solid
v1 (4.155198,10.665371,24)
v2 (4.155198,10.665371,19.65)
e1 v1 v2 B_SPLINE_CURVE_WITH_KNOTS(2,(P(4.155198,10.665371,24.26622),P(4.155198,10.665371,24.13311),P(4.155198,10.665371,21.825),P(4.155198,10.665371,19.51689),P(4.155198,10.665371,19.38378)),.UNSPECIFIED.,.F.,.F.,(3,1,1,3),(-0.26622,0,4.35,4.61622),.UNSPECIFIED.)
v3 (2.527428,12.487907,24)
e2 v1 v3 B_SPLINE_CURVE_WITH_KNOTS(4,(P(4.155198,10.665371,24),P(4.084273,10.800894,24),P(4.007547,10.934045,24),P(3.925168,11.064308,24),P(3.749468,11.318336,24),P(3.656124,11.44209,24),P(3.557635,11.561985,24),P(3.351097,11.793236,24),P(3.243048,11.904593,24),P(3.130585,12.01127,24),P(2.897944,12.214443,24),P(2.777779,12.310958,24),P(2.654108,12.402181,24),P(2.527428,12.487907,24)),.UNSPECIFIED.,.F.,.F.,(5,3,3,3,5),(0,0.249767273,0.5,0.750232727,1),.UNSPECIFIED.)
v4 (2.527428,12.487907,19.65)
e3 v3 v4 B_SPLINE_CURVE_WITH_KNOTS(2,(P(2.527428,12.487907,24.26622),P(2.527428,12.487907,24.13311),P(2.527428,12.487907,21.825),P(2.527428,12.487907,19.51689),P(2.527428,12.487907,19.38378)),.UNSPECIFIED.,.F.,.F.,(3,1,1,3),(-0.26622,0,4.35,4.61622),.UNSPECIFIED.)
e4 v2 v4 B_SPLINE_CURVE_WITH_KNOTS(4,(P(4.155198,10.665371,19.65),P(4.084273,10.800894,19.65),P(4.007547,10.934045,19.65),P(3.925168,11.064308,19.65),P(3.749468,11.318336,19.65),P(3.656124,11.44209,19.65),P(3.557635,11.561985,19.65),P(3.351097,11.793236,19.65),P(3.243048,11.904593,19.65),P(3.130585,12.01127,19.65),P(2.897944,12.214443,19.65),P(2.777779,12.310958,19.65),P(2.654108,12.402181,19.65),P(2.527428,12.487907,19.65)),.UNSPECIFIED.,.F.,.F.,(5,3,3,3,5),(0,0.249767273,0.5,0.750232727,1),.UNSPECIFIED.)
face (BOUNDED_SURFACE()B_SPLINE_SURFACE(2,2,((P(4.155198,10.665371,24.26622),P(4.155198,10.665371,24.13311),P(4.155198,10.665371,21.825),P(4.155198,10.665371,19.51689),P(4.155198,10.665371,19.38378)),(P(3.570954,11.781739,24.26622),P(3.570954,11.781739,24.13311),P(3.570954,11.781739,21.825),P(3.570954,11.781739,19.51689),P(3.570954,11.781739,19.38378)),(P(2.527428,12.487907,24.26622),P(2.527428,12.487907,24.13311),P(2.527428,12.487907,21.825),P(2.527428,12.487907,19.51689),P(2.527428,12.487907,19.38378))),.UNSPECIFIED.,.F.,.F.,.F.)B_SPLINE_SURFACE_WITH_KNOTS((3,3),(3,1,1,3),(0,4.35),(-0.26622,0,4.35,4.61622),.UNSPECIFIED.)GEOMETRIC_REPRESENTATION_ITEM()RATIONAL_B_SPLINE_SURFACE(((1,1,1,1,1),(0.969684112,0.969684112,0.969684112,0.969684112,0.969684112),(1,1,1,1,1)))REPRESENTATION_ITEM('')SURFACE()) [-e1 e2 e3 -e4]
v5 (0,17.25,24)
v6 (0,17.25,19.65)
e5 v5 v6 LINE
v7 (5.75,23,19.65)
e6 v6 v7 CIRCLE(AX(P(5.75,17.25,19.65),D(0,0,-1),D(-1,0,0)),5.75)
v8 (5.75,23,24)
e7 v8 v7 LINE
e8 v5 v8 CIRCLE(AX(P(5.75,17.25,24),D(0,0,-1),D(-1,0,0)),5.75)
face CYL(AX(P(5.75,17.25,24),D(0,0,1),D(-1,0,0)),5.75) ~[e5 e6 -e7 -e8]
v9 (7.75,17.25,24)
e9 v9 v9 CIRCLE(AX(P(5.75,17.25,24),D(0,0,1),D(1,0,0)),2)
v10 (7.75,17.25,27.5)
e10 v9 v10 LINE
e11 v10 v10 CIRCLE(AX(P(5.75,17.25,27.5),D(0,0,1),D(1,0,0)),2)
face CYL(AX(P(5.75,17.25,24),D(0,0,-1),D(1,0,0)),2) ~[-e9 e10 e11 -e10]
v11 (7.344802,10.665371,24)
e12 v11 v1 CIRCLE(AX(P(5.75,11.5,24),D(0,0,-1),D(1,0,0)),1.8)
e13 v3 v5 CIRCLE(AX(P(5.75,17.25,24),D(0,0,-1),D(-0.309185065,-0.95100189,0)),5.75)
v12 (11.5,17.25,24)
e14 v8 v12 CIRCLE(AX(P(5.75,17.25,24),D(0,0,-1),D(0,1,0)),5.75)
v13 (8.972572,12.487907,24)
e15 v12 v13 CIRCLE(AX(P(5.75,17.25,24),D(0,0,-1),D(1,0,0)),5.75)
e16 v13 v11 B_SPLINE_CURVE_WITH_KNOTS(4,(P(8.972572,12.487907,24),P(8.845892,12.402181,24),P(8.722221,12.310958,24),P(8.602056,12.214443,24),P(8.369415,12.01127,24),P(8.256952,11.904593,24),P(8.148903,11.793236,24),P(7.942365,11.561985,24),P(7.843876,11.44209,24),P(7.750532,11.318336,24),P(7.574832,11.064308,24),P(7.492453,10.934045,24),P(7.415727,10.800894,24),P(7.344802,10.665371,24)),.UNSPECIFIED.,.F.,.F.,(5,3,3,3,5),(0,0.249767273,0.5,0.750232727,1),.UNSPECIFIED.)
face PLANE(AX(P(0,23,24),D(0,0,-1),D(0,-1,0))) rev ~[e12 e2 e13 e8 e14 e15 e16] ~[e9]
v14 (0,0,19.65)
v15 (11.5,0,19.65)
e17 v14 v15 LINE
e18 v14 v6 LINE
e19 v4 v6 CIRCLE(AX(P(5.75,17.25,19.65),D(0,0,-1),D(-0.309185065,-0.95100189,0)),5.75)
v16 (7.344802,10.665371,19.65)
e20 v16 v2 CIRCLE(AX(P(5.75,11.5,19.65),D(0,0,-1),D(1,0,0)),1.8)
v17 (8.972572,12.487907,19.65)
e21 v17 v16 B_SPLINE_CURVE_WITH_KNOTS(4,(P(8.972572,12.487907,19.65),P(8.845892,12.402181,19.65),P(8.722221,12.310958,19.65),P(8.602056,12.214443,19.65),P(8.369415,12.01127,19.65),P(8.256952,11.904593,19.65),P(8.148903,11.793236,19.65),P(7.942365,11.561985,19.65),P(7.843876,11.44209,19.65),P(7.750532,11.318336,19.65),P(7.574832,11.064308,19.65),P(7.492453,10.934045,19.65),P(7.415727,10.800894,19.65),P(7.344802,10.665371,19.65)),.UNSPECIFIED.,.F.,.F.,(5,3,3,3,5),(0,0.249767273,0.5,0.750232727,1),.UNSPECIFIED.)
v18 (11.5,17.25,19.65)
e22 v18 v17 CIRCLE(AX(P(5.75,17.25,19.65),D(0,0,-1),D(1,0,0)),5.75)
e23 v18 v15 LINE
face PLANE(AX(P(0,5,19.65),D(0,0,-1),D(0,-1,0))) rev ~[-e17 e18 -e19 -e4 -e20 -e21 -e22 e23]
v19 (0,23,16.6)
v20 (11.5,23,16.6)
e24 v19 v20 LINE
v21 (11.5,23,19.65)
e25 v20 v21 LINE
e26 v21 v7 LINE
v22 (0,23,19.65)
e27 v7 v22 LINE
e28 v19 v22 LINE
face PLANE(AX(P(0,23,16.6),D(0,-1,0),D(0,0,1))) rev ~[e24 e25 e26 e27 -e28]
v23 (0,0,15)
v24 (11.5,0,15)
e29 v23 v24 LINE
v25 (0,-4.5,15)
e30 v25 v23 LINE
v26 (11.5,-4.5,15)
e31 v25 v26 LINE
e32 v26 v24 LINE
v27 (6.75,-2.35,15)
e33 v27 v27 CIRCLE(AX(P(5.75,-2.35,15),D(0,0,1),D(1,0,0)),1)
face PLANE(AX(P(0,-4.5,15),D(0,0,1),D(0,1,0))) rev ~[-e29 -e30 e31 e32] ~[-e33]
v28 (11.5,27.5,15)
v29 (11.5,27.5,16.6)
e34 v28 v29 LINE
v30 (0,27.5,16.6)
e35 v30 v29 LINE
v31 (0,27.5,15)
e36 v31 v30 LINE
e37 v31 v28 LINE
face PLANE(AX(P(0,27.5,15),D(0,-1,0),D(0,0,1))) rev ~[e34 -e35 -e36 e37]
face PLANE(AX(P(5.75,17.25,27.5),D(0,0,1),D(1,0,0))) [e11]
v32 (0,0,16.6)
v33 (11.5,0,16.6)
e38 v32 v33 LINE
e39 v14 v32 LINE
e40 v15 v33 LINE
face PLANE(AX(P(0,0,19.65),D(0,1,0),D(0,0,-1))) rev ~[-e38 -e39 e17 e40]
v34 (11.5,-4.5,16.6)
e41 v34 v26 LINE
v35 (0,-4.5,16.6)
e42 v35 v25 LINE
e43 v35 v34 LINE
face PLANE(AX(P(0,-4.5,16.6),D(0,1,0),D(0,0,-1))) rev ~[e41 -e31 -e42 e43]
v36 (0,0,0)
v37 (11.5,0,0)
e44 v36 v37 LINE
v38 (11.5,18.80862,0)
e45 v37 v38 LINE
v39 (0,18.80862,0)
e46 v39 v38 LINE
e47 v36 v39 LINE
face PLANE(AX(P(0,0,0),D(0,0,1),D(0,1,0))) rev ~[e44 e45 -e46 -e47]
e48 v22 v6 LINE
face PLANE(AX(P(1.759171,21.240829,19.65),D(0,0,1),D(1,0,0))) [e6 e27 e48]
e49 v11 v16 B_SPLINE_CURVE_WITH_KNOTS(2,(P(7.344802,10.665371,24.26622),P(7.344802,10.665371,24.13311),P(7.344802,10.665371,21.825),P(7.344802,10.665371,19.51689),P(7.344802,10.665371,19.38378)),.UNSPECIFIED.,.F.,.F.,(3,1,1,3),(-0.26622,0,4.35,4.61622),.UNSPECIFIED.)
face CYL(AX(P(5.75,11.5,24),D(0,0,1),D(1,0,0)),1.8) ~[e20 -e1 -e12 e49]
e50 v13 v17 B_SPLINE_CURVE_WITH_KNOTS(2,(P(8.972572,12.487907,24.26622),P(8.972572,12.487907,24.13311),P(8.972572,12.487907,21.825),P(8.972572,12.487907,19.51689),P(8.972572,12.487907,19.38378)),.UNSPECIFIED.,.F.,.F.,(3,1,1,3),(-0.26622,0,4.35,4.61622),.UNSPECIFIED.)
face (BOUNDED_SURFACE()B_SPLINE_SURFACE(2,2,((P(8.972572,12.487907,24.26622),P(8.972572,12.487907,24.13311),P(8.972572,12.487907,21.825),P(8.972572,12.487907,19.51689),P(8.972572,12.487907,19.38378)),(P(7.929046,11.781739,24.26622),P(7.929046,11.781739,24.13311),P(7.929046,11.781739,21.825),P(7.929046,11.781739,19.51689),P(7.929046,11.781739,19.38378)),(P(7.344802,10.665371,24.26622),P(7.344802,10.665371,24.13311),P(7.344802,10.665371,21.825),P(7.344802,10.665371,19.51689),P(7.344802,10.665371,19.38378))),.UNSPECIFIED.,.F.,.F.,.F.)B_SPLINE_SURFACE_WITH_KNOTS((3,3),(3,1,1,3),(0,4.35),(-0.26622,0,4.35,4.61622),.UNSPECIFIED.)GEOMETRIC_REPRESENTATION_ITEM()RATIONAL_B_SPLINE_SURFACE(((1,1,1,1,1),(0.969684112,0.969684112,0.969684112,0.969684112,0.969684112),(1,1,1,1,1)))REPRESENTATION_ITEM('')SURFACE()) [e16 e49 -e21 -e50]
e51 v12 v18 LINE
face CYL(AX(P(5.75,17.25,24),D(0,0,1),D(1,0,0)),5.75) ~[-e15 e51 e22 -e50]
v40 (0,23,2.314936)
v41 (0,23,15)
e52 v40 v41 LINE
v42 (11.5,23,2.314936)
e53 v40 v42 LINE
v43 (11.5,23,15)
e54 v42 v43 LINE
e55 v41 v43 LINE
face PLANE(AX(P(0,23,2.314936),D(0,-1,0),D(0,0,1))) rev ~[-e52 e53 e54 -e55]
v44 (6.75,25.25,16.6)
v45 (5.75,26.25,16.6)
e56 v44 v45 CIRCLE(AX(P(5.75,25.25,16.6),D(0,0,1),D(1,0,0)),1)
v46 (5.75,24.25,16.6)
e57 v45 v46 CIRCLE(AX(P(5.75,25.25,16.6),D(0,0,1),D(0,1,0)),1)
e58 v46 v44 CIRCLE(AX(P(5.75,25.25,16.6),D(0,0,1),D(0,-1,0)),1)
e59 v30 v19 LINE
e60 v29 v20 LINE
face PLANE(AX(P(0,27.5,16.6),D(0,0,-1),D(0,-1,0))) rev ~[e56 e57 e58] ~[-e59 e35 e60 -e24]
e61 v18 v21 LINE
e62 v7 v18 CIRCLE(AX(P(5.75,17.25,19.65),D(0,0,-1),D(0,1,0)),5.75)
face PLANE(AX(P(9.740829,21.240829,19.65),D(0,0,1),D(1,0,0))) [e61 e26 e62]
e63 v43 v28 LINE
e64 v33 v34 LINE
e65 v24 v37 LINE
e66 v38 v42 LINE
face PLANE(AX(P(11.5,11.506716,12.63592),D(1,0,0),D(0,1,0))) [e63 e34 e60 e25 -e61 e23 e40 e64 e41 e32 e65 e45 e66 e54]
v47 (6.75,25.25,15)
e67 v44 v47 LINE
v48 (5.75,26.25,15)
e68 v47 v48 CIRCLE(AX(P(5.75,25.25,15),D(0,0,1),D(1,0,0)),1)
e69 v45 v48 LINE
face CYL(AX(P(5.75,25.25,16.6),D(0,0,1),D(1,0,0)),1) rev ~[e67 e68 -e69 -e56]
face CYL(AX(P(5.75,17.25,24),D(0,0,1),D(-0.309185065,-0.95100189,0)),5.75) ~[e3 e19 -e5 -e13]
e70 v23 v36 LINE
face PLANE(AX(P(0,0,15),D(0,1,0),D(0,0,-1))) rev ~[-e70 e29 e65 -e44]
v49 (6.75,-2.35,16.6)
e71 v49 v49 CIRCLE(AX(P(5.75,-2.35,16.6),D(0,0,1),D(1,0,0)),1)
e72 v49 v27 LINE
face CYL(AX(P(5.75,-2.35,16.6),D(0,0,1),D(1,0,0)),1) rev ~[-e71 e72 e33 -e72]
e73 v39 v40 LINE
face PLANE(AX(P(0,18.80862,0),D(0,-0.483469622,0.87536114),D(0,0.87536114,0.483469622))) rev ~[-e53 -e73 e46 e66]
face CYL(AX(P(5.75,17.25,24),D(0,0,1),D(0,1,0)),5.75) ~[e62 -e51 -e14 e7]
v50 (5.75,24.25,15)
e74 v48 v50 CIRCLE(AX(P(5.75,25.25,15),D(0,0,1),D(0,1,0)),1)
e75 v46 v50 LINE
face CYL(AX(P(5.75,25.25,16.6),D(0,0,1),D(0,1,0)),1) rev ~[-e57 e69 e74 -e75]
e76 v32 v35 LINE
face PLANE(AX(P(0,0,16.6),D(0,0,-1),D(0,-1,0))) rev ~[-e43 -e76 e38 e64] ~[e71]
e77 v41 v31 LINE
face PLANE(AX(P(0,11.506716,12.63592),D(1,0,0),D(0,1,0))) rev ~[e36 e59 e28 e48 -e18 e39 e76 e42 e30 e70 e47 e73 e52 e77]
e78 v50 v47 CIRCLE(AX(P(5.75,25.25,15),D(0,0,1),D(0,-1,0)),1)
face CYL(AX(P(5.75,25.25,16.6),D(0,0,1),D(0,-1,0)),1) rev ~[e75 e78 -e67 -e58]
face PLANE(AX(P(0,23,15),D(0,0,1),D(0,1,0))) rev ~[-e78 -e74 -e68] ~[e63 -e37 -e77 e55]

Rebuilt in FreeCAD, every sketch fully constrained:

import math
import FreeCAD as App
import Part
import Sketcher

V = App.Vector
Q = App.Units.Quantity


def edges_at(feature, points):
    """Names of the edges that pass closest to the given points."""
    edges = feature.Shape.Edges
    near = lambda p: min(range(len(edges)), key=lambda i: edges[i].distToShape(Part.Vertex(*p))[0])
    return sorted({f"Edge{near(p) + 1}" for p in points})


def add_polygon(sketch, points):
    """Adds a closed chain of lines whose ends are joined by coincident constraints."""
    first, n = sketch.GeometryCount, len(points)
    for a, b in zip(points, points[1:] + points[:1]):
        sketch.addGeometry(Part.LineSegment(App.Vector(*a, 0), App.Vector(*b, 0)), False)
    for i in range(n):
        sketch.addConstraint(Sketcher.Constraint("Coincident", first + i, 2, first + (i + 1) % n, 1))

doc = App.newDocument("Part")
body = doc.addObject("PartDesign::Body", "Body")

# Sketch on YZ plane
sketch1 = body.newObject("Sketcher::SketchObject", "Sketch")
sketch1.AttachmentSupport = (doc.getObject("YZ_Plane"), [""])
sketch1.MapMode = "FlatFace"
add_polygon(sketch1, [(0, 15), (0, 0), (18.8, 0), (23, 2.3), (23, 15), (27.5, 15), (27.5, 16.6), (23, 16.6), (23, 24), (5, 24), (5, 19.6), (0, 19.6), (0, 16.6), (-4.5, 16.6), (-4.5, 15)])  # lines 0-14
sketch1.addConstraint([
    Sketcher.Constraint("Vertical", 0),
    Sketcher.Constraint("Horizontal", 1),
    Sketcher.Constraint("Vertical", 3),
    Sketcher.Constraint("Horizontal", 4),
    Sketcher.Constraint("Vertical", 5),
    Sketcher.Constraint("Horizontal", 6),
    Sketcher.Constraint("Vertical", 7),
    Sketcher.Constraint("Horizontal", 8),
    Sketcher.Constraint("Vertical", 9),
    Sketcher.Constraint("Horizontal", 10),
    Sketcher.Constraint("Vertical", 11),
    Sketcher.Constraint("Horizontal", 12),
    Sketcher.Constraint("Vertical", 13),
    Sketcher.Constraint("Horizontal", 14),
    Sketcher.Constraint("Coincident", 0, 2, -1, 1),
    Sketcher.Constraint("PointOnObject", 10, 2, -2),
    Sketcher.Constraint("Horizontal", 6, 2, 11, 2),
    Sketcher.Constraint("Horizontal", 4, 2, 13, 2),
    Sketcher.Constraint("Vertical", 3, 2, 6, 2),
    Sketcher.Constraint("Equal", 6, 12),
    Sketcher.Constraint("DistanceX", 8, 2, 8, 1, Q("18 mm")),
    Sketcher.Constraint("DistanceX", 10, 2, 10, 1, Q("5 mm")),
    Sketcher.Constraint("DistanceY", 0, 2, 0, 1, Q("15 mm")),
    Sketcher.Constraint("DistanceX", 4, 1, 4, 2, Q("4.5 mm")),
    Sketcher.Constraint("DistanceY", 5, 1, 5, 2, Q("1.6 mm")),
    Sketcher.Constraint("DistanceY", 7, 1, 7, 2, Q("7.4 mm")),
    Sketcher.Constraint("DistanceY", 9, 2, 9, 1, Q("4.35 mm")),
    Sketcher.Constraint("DistanceX", 1, 1, 1, 2, Q("18.80862 mm")),
    Sketcher.Constraint("DistanceY", 3, 1, 3, 2, Q("12.685064 mm")),
])
pad1 = body.newObject("PartDesign::Pad", "Pad")
pad1.Profile = sketch1
pad1.Length = 11.5

# Sketch on XY plane
sketch2 = body.newObject("Sketcher::SketchObject", "Sketch001")
sketch2.AttachmentSupport = (doc.getObject("XY_Plane"), [""])
sketch2.MapMode = "FlatFace"
sketch2.AttachmentOffset = App.Placement(V(0, 0, 24), App.Rotation())
sketch2.addGeometry([
    Part.LineSegment(V(11.5, 5, 0), V(11.5, 17.25, 0)),  # 0
    Part.ArcOfCircle(Part.Circle(V(5.75, 17.25, 0), V(0, 0, 1), 5.75), math.radians(-72), math.radians(0)),  # 1
    Part.ArcOfCircle(Part.Circle(V(5.75, 11.5, 0), V(0, 0, 1), 1.8), math.radians(0), math.radians(9.01)),  # 2
    Part.ArcOfCircle(Part.Circle(V(5.75, 11.5, 0), V(0, 0, 1), 1.8), math.radians(171), math.radians(360)),  # 3
    Part.ArcOfCircle(Part.Circle(V(5.75, 17.25, 0), V(0, 0, 1), 5.75), math.radians(180), math.radians(252)),  # 4
    Part.LineSegment(V(0, 17.25, 0), V(0, 5, 0)),  # 5
    Part.LineSegment(V(0, 5, 0), V(11.5, 5, 0)),  # 6
    Part.ArcOfCircle(Part.Circle(V(5.75, 17.25, 0), V(0, 0, 1), 5.75), math.radians(0), math.radians(90)),  # 7
    Part.LineSegment(V(11.5, 17.25, 0), V(11.5, 23, 0)),  # 8
    Part.LineSegment(V(11.5, 23, 0), V(5.75, 23, 0)),  # 9
    Part.ArcOfCircle(Part.Circle(V(5.75, 17.25, 0), V(0, 0, 1), 5.75), math.radians(90), math.radians(180)),  # 10
    Part.LineSegment(V(5.75, 23, 0), V(0, 23, 0)),  # 11
    Part.LineSegment(V(0, 23, 0), V(0, 17.25, 0)),  # 12
], False)
sketch2.addConstraint([
    Sketcher.Constraint("Tangent", 0, 2, 1, 2),
    Sketcher.Constraint("Coincident", 1, 1, 2, 2),
    Sketcher.Constraint("Tangent", 2, 1, 3, 2),
    Sketcher.Constraint("Coincident", 3, 1, 4, 2),
    Sketcher.Constraint("Tangent", 4, 1, 5, 1),
    Sketcher.Constraint("Coincident", 5, 2, 6, 1),
    Sketcher.Constraint("Coincident", 6, 2, 0, 1),
    Sketcher.Constraint("Tangent", 7, 1, 8, 1),
    Sketcher.Constraint("Coincident", 8, 2, 9, 1),
    Sketcher.Constraint("Tangent", 9, 2, 7, 2),
    Sketcher.Constraint("Tangent", 10, 1, 11, 1),
    Sketcher.Constraint("Coincident", 11, 2, 12, 1),
    Sketcher.Constraint("Tangent", 12, 2, 10, 2),
    Sketcher.Constraint("Vertical", 0),
    Sketcher.Constraint("Vertical", 5),
    Sketcher.Constraint("Horizontal", 6),
    Sketcher.Constraint("Vertical", 8),
    Sketcher.Constraint("Horizontal", 9),
    Sketcher.Constraint("Horizontal", 11),
    Sketcher.Constraint("Vertical", 12),
    Sketcher.Constraint("Coincident", 4, 3, 1, 3),
    Sketcher.Constraint("Coincident", 7, 3, 1, 3),
    Sketcher.Constraint("Coincident", 10, 3, 1, 3),
    Sketcher.Constraint("Equal", 2, 3),
    Sketcher.Constraint("Equal", 1, 4),
    Sketcher.Constraint("Equal", 4, 7),
    Sketcher.Constraint("Equal", 7, 10),
    Sketcher.Constraint("PointOnObject", 4, 1, -2),
    Sketcher.Constraint("Horizontal", 3, 3, 2, 1),
    Sketcher.Constraint("Horizontal", 1, 1, 3, 1),
    Sketcher.Constraint("Radius", 2, Q("1.8 mm")),
    Sketcher.Constraint("Radius", 1, Q("5.75 mm")),
    Sketcher.Constraint("DistanceY", -1, 1, 5, 2, Q("5 mm")),
    Sketcher.Constraint("DistanceY", -1, 1, 8, 2, Q("23 mm")),
    Sketcher.Constraint("DistanceY", -1, 1, 2, 3, Q("11.5 mm")),
])
pocket1 = body.newObject("PartDesign::Pocket", "Pocket")
pocket1.Profile = sketch2
pocket1.Length = 4.35
doc.recompute()

fillet = body.newObject("PartDesign::Fillet", "Fillet")
fillet.Base = (pocket1, edges_at(pocket1, [(7.528, 11.782, 21.825), (3.972, 11.782, 21.825)]))
fillet.Radius = 5

# Sketch on XY plane
sketch3 = body.newObject("Sketcher::SketchObject", "Sketch002")
sketch3.AttachmentSupport = (doc.getObject("XY_Plane"), [""])
sketch3.MapMode = "FlatFace"
sketch3.AttachmentOffset = App.Placement(V(0, 0, 16.6), App.Rotation())
sketch3.addGeometry([
    Part.ArcOfCircle(Part.Circle(V(5.8, 25.2, 0), V(0, 0, 1), 1), math.radians(-90), math.radians(0)),
    Part.ArcOfCircle(Part.Circle(V(5.8, 25.2, 0), V(0, 0, 1), 1), math.radians(0), math.radians(90)),
    Part.ArcOfCircle(Part.Circle(V(5.8, 25.2, 0), V(0, 0, 1), 1), math.radians(90), math.radians(270)),
    Part.Circle(V(5.8, -2.4, 0), V(0, 0, 1), 1),
], False)
sketch3.addConstraint([
    Sketcher.Constraint("Tangent", 0, 2, 1, 1),
    Sketcher.Constraint("Tangent", 1, 2, 2, 1),
    Sketcher.Constraint("Tangent", 2, 2, 0, 1),
    Sketcher.Constraint("Equal", 2, 3),
    Sketcher.Constraint("Horizontal", 2, 3, 0, 2),
    Sketcher.Constraint("Vertical", 2, 3, 3, 3),
    Sketcher.Constraint("Vertical", 3, 3, 1, 2),
    Sketcher.Constraint("Vertical", 1, 2, 2, 2),
    Sketcher.Constraint("Diameter", 3, Q("2 mm")),
    Sketcher.Constraint("DistanceY", 3, 3, 0, 3, Q("27.6 mm")),
    Sketcher.Constraint("DistanceX", -1, 1, 0, 3, Q("5.75 mm")),
    Sketcher.Constraint("DistanceY", -1, 1, 0, 3, Q("25.25 mm")),
])
pocket2 = body.newObject("PartDesign::Pocket", "Pocket001")
pocket2.Profile = sketch3
pocket2.Length = 25

# Sketch on XY plane
sketch4 = body.newObject("Sketcher::SketchObject", "Sketch003")
sketch4.AttachmentSupport = (doc.getObject("XY_Plane"), [""])
sketch4.MapMode = "FlatFace"
sketch4.AttachmentOffset = App.Placement(V(0, 0, 24), App.Rotation())
sketch4.addGeometry(Part.Circle(V(5.8, 17.2, 0), V(0, 0, 1), 2), False)
sketch4.addConstraint([
    Sketcher.Constraint("Diameter", 0, Q("4 mm")),
    Sketcher.Constraint("DistanceX", -1, 1, 0, 3, Q("5.75 mm")),
    Sketcher.Constraint("DistanceY", -1, 1, 0, 3, Q("17.25 mm")),
])
pad2 = body.newObject("PartDesign::Pad", "Pad001")
pad2.Profile = sketch4
pad2.Length = 3.5

doc.recompute()
